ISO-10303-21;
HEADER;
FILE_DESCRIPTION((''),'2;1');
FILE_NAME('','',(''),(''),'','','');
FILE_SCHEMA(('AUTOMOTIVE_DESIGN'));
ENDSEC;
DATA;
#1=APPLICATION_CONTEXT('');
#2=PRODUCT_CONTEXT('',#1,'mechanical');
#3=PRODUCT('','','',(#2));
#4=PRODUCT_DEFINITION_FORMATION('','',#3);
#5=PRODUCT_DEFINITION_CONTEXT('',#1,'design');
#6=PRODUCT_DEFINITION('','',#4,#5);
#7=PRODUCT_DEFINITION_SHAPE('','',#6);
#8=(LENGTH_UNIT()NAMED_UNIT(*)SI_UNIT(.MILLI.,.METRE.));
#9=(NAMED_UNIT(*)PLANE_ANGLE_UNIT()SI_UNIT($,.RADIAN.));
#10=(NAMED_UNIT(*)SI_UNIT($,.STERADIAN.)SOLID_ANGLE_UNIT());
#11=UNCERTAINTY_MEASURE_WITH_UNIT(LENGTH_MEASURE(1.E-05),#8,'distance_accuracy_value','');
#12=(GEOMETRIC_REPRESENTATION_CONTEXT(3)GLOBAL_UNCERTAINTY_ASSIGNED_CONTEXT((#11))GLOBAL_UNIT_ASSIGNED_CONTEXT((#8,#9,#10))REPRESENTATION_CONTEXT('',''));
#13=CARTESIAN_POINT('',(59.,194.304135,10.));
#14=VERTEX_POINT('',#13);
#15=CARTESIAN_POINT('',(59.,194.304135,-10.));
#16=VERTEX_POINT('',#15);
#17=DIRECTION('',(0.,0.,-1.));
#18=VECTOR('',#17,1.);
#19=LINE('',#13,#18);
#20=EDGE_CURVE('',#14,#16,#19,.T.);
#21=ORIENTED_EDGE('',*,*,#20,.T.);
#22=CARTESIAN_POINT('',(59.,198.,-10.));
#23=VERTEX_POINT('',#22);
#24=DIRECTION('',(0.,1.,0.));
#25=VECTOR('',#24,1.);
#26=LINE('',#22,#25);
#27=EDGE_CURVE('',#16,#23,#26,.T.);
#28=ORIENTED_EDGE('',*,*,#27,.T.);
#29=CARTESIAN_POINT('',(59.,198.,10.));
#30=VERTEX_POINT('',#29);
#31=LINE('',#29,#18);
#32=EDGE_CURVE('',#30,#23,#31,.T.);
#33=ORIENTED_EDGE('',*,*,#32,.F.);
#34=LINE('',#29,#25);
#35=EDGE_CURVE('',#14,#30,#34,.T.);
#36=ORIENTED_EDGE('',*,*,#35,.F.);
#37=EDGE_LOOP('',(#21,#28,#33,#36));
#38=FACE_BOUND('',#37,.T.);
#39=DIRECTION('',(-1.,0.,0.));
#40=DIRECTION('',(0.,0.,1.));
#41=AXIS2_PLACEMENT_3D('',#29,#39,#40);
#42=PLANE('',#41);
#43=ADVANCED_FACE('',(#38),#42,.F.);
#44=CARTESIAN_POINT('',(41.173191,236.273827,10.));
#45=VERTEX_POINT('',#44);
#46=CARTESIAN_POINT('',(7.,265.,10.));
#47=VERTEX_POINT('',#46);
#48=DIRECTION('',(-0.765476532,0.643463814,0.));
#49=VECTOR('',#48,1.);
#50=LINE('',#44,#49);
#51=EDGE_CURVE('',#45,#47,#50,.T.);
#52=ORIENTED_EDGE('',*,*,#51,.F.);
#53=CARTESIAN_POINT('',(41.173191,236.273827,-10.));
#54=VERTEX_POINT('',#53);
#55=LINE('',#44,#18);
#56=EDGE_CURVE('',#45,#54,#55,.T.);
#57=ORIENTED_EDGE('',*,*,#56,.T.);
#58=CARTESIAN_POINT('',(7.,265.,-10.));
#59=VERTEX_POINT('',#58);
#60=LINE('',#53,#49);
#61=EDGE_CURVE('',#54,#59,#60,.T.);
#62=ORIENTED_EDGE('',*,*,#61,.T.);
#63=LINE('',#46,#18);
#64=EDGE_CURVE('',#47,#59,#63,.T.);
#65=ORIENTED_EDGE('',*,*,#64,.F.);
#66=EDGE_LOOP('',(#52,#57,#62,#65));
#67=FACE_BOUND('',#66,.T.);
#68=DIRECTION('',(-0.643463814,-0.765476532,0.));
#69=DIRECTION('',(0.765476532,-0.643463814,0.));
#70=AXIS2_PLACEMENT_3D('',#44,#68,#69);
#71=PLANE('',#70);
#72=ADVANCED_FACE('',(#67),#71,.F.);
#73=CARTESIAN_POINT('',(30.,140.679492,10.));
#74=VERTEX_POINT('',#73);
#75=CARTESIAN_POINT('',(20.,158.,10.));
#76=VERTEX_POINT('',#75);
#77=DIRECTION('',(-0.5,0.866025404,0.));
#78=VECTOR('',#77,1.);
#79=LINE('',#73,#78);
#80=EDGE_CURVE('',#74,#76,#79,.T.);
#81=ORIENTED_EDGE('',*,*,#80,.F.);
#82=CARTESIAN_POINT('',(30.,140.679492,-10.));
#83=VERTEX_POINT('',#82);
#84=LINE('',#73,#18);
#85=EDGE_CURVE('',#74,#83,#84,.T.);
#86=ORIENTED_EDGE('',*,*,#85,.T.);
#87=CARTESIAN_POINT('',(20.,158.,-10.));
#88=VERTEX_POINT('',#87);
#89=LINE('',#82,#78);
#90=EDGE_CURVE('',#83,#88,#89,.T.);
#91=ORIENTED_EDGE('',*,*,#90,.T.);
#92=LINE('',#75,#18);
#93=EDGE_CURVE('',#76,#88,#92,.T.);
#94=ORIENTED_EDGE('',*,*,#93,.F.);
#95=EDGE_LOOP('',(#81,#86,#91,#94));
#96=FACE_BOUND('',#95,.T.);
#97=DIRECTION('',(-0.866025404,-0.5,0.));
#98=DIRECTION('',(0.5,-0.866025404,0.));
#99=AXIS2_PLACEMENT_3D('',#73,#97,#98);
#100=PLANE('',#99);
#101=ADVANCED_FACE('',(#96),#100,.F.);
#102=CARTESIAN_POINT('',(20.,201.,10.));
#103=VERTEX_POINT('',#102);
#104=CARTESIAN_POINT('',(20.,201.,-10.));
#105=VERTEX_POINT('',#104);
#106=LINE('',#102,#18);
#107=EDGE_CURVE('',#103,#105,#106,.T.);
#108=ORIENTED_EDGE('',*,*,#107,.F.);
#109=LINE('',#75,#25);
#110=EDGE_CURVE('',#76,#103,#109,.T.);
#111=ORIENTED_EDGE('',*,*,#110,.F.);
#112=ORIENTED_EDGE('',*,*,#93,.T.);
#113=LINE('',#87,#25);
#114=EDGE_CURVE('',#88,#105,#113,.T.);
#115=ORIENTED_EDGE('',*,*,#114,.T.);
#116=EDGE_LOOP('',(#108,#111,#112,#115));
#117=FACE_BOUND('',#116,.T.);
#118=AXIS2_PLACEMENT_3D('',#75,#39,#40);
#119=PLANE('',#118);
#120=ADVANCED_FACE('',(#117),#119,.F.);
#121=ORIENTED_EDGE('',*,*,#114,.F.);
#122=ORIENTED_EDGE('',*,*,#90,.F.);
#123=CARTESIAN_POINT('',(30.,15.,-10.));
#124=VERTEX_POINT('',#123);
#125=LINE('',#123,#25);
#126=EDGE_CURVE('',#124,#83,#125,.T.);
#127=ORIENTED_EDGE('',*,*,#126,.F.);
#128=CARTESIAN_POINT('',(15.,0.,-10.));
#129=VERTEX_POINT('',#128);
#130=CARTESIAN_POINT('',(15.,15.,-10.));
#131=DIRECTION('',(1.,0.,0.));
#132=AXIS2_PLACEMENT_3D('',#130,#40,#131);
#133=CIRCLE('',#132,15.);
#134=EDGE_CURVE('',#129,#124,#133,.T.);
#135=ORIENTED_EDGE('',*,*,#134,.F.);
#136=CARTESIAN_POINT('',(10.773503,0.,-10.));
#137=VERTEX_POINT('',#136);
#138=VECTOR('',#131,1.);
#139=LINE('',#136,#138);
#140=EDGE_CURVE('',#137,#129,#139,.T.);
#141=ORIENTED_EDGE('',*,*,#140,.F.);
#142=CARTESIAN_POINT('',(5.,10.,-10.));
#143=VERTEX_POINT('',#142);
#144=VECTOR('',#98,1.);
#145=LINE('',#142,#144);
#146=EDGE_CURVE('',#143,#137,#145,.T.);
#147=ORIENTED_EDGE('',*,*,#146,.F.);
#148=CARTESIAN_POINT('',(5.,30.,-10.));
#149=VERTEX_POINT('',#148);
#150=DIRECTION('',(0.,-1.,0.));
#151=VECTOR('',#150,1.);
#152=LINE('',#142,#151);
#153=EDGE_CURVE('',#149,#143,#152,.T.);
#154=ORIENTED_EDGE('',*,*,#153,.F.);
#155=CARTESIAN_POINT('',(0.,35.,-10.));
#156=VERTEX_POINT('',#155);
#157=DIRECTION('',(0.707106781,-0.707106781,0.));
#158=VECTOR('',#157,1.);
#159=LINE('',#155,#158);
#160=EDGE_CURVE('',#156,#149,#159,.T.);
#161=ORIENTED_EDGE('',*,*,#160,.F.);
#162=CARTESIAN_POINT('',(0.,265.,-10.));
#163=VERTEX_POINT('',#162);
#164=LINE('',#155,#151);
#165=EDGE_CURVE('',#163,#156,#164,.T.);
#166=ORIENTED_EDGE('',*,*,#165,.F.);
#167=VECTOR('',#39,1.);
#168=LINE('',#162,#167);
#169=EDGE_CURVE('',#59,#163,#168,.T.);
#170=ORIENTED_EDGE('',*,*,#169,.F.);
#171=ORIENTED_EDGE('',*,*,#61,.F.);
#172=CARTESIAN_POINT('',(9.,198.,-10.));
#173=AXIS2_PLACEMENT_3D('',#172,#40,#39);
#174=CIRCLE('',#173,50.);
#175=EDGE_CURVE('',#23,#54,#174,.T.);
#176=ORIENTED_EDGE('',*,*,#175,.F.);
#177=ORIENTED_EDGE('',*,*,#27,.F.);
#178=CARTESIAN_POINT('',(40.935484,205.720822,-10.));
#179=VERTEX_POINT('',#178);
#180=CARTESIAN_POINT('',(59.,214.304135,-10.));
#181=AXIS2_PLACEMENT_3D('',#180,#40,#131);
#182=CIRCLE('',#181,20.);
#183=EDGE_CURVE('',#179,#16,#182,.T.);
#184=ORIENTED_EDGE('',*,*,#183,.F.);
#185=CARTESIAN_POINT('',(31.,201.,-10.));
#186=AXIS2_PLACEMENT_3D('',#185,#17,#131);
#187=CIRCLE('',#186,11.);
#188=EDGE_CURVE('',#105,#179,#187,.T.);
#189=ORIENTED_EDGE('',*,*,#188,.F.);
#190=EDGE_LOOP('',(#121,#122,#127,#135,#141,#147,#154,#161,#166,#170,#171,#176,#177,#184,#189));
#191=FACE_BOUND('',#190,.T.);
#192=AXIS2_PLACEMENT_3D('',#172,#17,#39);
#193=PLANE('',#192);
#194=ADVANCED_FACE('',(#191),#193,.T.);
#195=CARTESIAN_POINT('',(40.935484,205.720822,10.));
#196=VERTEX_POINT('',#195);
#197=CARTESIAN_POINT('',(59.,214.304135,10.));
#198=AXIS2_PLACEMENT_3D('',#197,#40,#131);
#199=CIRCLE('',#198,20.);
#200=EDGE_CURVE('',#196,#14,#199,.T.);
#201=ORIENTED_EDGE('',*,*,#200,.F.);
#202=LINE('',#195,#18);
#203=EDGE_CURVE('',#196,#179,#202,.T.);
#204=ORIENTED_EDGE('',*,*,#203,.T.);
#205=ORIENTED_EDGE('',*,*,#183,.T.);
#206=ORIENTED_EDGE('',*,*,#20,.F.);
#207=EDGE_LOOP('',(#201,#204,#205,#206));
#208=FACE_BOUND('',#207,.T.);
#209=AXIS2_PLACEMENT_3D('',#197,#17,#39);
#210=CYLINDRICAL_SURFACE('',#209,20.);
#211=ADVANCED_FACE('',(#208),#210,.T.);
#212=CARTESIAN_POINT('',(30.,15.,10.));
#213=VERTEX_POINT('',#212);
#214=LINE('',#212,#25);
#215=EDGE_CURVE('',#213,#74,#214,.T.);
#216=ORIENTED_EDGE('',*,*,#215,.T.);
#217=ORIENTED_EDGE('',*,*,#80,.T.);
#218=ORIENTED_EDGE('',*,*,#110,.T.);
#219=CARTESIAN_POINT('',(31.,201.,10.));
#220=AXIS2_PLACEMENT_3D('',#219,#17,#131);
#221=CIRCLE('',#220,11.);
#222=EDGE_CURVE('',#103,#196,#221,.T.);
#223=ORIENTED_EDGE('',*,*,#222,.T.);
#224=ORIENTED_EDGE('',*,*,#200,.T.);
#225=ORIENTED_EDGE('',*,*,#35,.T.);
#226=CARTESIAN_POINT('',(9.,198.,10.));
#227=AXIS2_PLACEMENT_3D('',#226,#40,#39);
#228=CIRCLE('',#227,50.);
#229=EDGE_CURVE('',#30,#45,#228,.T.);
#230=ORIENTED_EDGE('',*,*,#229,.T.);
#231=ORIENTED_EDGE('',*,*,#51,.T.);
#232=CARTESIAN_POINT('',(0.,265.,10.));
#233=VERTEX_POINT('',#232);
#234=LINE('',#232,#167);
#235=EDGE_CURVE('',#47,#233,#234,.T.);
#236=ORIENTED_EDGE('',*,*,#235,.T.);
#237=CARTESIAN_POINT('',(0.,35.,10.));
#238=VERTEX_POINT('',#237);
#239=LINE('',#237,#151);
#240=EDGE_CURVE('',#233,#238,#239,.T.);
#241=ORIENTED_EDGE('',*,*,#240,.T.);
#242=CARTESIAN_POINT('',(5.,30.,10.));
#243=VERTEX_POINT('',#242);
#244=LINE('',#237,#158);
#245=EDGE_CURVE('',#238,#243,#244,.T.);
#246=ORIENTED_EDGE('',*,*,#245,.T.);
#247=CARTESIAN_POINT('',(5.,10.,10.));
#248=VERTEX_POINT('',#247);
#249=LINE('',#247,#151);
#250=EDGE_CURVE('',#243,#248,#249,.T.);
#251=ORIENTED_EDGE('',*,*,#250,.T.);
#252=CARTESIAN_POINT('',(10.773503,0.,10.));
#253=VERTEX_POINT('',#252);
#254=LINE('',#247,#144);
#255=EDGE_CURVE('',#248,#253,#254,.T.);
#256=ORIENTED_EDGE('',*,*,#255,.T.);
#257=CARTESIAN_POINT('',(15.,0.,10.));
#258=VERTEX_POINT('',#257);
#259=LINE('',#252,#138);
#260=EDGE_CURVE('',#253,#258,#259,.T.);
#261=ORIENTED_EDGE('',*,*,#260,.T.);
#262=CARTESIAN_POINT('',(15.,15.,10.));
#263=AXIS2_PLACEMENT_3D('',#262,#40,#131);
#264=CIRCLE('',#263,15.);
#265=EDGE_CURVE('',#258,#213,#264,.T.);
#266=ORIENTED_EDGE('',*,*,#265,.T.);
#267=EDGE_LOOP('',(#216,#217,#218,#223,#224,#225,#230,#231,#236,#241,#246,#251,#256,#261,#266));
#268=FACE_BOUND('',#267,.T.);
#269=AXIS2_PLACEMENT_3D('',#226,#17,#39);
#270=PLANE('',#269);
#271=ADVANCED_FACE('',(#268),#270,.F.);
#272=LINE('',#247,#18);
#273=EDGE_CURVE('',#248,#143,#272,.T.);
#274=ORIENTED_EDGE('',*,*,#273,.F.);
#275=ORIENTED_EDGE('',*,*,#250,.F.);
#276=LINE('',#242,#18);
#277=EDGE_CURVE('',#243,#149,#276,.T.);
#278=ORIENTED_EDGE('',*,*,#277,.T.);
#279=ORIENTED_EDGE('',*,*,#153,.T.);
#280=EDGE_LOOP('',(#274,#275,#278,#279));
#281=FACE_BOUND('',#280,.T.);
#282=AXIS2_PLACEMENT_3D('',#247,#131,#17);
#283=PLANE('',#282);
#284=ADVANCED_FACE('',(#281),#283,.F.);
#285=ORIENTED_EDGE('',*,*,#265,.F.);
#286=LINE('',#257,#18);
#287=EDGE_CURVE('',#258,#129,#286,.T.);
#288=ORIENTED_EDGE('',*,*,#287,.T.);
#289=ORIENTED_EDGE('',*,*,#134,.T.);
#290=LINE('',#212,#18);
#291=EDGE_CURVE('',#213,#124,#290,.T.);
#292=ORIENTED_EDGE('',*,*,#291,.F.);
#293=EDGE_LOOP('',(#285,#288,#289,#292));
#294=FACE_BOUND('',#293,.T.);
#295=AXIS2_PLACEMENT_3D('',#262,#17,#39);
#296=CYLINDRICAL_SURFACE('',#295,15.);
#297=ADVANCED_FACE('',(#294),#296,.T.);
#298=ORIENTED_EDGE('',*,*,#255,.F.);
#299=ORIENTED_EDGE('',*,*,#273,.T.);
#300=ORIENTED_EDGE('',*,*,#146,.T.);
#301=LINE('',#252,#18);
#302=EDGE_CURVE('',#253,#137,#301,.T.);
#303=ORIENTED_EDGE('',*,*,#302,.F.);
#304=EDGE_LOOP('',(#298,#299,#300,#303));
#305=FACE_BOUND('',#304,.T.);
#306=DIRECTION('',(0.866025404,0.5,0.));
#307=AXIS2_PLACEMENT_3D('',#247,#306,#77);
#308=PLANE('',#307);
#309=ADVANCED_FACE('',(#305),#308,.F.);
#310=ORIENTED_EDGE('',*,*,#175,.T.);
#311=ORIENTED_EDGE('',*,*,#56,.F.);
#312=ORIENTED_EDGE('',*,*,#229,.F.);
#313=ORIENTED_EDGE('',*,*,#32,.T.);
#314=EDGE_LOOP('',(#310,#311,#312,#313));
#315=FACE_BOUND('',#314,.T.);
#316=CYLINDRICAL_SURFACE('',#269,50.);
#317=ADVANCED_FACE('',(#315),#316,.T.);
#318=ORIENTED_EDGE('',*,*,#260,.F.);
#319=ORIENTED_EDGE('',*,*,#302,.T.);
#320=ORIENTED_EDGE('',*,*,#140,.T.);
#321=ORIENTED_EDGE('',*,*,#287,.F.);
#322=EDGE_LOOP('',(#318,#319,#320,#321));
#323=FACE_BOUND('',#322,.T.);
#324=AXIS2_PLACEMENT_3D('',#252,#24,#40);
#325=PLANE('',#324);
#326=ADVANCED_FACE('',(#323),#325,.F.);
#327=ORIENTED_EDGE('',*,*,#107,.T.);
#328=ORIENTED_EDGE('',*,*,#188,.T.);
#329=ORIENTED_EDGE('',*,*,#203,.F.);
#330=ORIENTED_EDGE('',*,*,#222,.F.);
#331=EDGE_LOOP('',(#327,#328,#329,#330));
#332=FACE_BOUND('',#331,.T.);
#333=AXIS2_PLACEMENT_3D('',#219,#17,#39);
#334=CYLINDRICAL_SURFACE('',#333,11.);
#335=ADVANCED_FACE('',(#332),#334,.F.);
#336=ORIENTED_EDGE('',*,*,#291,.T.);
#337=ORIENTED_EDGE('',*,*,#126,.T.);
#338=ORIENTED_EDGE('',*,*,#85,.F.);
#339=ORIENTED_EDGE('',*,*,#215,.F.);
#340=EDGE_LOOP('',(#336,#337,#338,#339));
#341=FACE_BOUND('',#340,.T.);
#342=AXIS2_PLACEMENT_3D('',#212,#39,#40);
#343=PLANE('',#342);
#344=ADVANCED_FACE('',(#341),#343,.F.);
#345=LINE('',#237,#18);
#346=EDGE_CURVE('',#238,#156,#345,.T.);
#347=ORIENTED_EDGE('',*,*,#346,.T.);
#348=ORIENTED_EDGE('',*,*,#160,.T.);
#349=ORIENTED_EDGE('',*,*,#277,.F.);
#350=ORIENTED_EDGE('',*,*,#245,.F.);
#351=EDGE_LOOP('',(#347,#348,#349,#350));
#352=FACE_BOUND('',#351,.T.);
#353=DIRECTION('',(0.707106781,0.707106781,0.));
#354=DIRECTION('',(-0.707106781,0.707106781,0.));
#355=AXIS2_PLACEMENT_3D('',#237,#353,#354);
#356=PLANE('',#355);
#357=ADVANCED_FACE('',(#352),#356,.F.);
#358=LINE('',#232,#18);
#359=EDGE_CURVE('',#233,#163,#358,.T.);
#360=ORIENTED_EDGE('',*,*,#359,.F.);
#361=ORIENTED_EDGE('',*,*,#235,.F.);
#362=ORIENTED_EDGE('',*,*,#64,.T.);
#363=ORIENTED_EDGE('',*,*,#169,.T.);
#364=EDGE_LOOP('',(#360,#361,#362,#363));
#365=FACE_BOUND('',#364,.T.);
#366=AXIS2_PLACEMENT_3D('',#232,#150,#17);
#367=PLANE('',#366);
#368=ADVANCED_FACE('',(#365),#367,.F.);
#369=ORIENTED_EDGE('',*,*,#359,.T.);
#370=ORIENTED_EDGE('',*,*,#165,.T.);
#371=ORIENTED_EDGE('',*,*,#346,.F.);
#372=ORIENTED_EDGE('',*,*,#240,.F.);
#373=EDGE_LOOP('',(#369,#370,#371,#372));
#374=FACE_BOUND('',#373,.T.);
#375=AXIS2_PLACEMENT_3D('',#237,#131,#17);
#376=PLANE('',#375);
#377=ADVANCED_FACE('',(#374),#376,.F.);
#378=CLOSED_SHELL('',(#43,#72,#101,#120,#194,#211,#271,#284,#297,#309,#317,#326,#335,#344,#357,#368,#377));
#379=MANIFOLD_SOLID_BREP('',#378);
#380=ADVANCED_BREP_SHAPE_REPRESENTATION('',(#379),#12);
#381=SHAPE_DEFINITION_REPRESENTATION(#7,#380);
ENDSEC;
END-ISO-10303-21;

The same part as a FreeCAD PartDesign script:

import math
import FreeCAD as App
import Part
import Sketcher

V = App.Vector
Q = App.Units.Quantity

doc = App.newDocument("Part")
params = doc.addObject("Spreadsheet::Sheet", "Params")
for row, (alias, value) in enumerate([
    ("sketch1_radius", "15 mm"),
    ("sketch1_radius2", "11 mm"),
    ("sketch1_radius3", "20 mm"),
    ("sketch1_radius4", "50 mm"),
    ("sketch1_width", "7 mm"),
    ("pad1_length", "20 mm"),
], start=1):
    params.set(f"A{row}", alias)
    params.set(f"B{row}", "=" + value)
    params.setAlias(f"B{row}", alias)

body = doc.addObject("PartDesign::Body", "Body")

sketch1 = body.newObject("Sketcher::SketchObject", "Sketch")
sketch1.AttachmentSupport = (doc.getObject("XY_Plane"), [""])
sketch1.MapMode = "FlatFace"
sketch1.addGeometry([
    Part.LineSegment(V(5, 10, 0), V(10.8, 0, 0)),
    Part.LineSegment(V(10.8, 0, 0), V(15, 0, 0)),
    Part.ArcOfCircle(Part.Circle(V(15, 15, 0), V(0, 0, 1), 15), math.radians(-90), math.radians(0)),
    Part.LineSegment(V(30, 15, 0), V(30, 140.7, 0)),
    Part.LineSegment(V(30, 140.7, 0), V(20, 158, 0)),
    Part.LineSegment(V(20, 158, 0), V(20, 201, 0)),
    Part.ArcOfCircle(Part.Circle(V(31, 201, 0), V(0, 0, 1), 11), math.radians(25), math.radians(180)),
    Part.ArcOfCircle(Part.Circle(V(59, 214.3, 0), V(0, 0, 1), 20), math.radians(-155), math.radians(-90)),
    Part.LineSegment(V(59, 194.3, 0), V(59, 198, 0)),
    Part.ArcOfCircle(Part.Circle(V(9, 198, 0), V(0, 0, 1), 50), math.radians(0), math.radians(50)),
    Part.LineSegment(V(41.2, 236.3, 0), V(7, 265, 0)),
    Part.LineSegment(V(7, 265, 0), V(0, 265, 0)),
    Part.LineSegment(V(0, 265, 0), V(0, 35, 0)),
    Part.LineSegment(V(0, 35, 0), V(5, 30, 0)),
    Part.LineSegment(V(5, 30, 0), V(5, 10, 0)),
], False)
sketch1.addConstraint([
    Sketcher.Constraint("Coincident", 0, 2, 1, 1),
    Sketcher.Constraint("Tangent", 1, 2, 2, 1),
    Sketcher.Constraint("Tangent", 2, 2, 3, 1),
    Sketcher.Constraint("Coincident", 3, 2, 4, 1),
    Sketcher.Constraint("Coincident", 4, 2, 5, 1),
    Sketcher.Constraint("Tangent", 5, 2, 6, 2),
    Sketcher.Constraint("Tangent", 6, 1, 7, 1),
    Sketcher.Constraint("Coincident", 7, 2, 8, 1),
    Sketcher.Constraint("Tangent", 8, 2, 9, 1),
    Sketcher.Constraint("Tangent", 9, 2, 10, 1),
    Sketcher.Constraint("Coincident", 10, 2, 11, 1),
    Sketcher.Constraint("Coincident", 11, 2, 12, 1),
    Sketcher.Constraint("Coincident", 12, 2, 13, 1),
    Sketcher.Constraint("Coincident", 13, 2, 14, 1),
    Sketcher.Constraint("Coincident", 14, 2, 0, 1),
    Sketcher.Constraint("Horizontal", 1),
    Sketcher.Constraint("Vertical", 3),
    Sketcher.Constraint("Vertical", 5),
    Sketcher.Constraint("Vertical", 8),
    Sketcher.Constraint("Horizontal", 11),
    Sketcher.Constraint("Vertical", 12),
    Sketcher.Constraint("Vertical", 14),
    Sketcher.Constraint("PointOnObject", 0, 2, -1),
    Sketcher.Constraint("PointOnObject", 11, 2, -2),
    Sketcher.Constraint("Parallel", 0, 4),
    Sketcher.Constraint("Radius", 2, 15.0),
    Sketcher.Constraint("Radius", 6, 11.0),
    Sketcher.Constraint("Radius", 7, 20.0),
    Sketcher.Constraint("Radius", 9, 50.0),
    Sketcher.Constraint("DistanceX", 11, 2, 11, 1, 7.0),
    Sketcher.Constraint("DistanceY", 5, 1, 5, 2, 43.0),
    Sketcher.Constraint("DistanceY", 12, 2, 12, 1, 230.0),
    Sketcher.Constraint("DistanceY", 14, 2, 14, 1, 20.0),
    Sketcher.Constraint("Angle", 0, Q("-60 deg")),
    Sketcher.Constraint("Angle", 13, Q("-45 deg")),
    Sketcher.Constraint("Distance", 4, 20.0),
    Sketcher.Constraint("DistanceX", -1, 1, 2, 3, 15.0),
    Sketcher.Constraint("DistanceY", -1, 1, 6, 3, 201.0),
    Sketcher.Constraint("DistanceX", -1, 1, 7, 3, 59.0),
    Sketcher.Constraint("DistanceX", -1, 1, 9, 3, 9.0),
    Sketcher.Constraint("DistanceY", -1, 1, 9, 3, 198.0),
    Sketcher.Constraint("DistanceY", -1, 1, 10, 2, 265.0),
    Sketcher.Constraint("DistanceX", -1, 1, 13, 2, 5.0),
])
sketch1.setExpression("Constraints[25]", "Params.sketch1_radius")
sketch1.setExpression("Constraints[26]", "Params.sketch1_radius2")
sketch1.setExpression("Constraints[27]", "Params.sketch1_radius3")
sketch1.setExpression("Constraints[28]", "Params.sketch1_radius4")
sketch1.setExpression("Constraints[29]", "Params.sketch1_width")
pad1 = body.newObject("PartDesign::Pad", "Pad")
pad1.Profile = sketch1
pad1.setExpression("Length", "Params.pad1_length")
pad1.Midplane = True

doc.recompute()
